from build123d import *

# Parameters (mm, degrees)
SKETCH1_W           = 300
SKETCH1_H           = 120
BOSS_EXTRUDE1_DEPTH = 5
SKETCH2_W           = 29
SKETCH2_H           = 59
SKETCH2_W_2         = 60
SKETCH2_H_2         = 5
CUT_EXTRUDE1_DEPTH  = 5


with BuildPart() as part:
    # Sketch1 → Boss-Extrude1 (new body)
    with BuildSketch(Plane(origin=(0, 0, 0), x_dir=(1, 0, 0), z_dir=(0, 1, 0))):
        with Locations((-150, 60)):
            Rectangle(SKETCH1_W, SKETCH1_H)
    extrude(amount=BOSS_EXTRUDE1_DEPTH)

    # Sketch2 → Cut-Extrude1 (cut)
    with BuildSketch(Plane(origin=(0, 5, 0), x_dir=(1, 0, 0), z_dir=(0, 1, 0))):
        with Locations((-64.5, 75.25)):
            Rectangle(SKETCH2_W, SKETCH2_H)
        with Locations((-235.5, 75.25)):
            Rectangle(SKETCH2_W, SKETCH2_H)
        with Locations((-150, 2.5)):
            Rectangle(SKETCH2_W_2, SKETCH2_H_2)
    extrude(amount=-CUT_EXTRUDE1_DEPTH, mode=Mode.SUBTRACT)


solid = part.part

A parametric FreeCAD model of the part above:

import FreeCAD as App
import Part
import Sketcher
from FreeCAD import Vector


def add_polygon(sketch, points):
    """Adds a closed chain of lines whose ends are joined by coincident constraints."""
    first, n = sketch.GeometryCount, len(points)
    for a, b in zip(points, points[1:] + points[:1]):
        sketch.addGeometry(Part.LineSegment(App.Vector(*a, 0), App.Vector(*b, 0)), False)
    for i in range(n):
        sketch.addConstraint(Sketcher.Constraint("Coincident", first + i, 2, first + (i + 1) % n, 1))

doc = App.newDocument("Part")
body = doc.addObject("PartDesign::Body", "Body")

# Sketch on XZ plane
sketch1 = body.newObject("Sketcher::SketchObject", "Sketch")
sketch1.AttachmentSupport = (doc.getObject("XZ_Plane"), [""])
sketch1.MapMode = "FlatFace"
add_polygon(sketch1, [(-300, -120), (-300, 0), (0, 0), (0, -120)])  # lines 0-3
sketch1.addConstraint([
    Sketcher.Constraint("Vertical", 0),
    Sketcher.Constraint("Horizontal", 1),
    Sketcher.Constraint("Vertical", 2),
    Sketcher.Constraint("Horizontal", 3),
    Sketcher.Constraint("Coincident", 1, 2, -1, 1),
    Sketcher.Constraint("DistanceX", 1, 1, 1, 2, 300.0),
    Sketcher.Constraint("DistanceY", 0, 1, 0, 2, 120.0),
])
pad1 = body.newObject("PartDesign::Pad", "Pad")
pad1.Profile = sketch1
pad1.Length = 5
pad1.Reversed = True

# Sketch on XZ plane
sketch2 = body.newObject("Sketcher::SketchObject", "Sketch001")
sketch2.AttachmentSupport = (doc.getObject("XZ_Plane"), [""])
sketch2.MapMode = "FlatFace"
sketch2.AttachmentOffset = App.Placement(Vector(0, 0, -5), App.Rotation())
add_polygon(sketch2, [(-79, -104.75), (-79, -45.75), (-50, -45.75), (-50, -104.75)])  # lines 0-3
add_polygon(sketch2, [(-250, -104.75), (-250, -45.75), (-221, -45.75), (-221, -104.75)])  # lines 4-7
add_polygon(sketch2, [(-180, -5), (-180, 0), (-120, 0), (-120, -5)])  # lines 8-11
sketch2.addConstraint([
    Sketcher.Constraint("Vertical", 0),
    Sketcher.Constraint("Horizontal", 1),
    Sketcher.Constraint("Vertical", 2),
    Sketcher.Constraint("Horizontal", 3),
    Sketcher.Constraint("Vertical", 4),
    Sketcher.Constraint("Horizontal", 5),
    Sketcher.Constraint("Vertical", 6),
    Sketcher.Constraint("Horizontal", 7),
    Sketcher.Constraint("Vertical", 8),
    Sketcher.Constraint("Horizontal", 9),
    Sketcher.Constraint("Vertical", 10),
    Sketcher.Constraint("Horizontal", 11),
    Sketcher.Constraint("PointOnObject", 8, 2, -1),
    Sketcher.Constraint("Horizontal", 1, 2, 4, 2),
    Sketcher.Constraint("Horizontal", 3, 2, 6, 2),
    Sketcher.Constraint("Equal", 3, 5),
    Sketcher.Constraint("DistanceX", 1, 1, 1, 2, 29.0),
    Sketcher.Constraint("DistanceX", 9, 1, 9, 2, 60.0),
    Sketcher.Constraint("DistanceY", 0, 1, 0, 2, 59.0),
    Sketcher.Constraint("DistanceY", 8, 1, 8, 2, 5.0),
    Sketcher.Constraint("DistanceX", 0, 2, -1, 1, 79.0),
    Sketcher.Constraint("DistanceX", 4, 2, -1, 1, 250.0),
    Sketcher.Constraint("DistanceX", 8, 2, -1, 1, 180.0),
    Sketcher.Constraint("DistanceY", 0, 2, -1, 1, 45.75),
])
pocket1 = body.newObject("PartDesign::Pocket", "Pocket")
pocket1.Profile = sketch2
pocket1.Length = 5
pocket1.Reversed = True

doc.recompute()
